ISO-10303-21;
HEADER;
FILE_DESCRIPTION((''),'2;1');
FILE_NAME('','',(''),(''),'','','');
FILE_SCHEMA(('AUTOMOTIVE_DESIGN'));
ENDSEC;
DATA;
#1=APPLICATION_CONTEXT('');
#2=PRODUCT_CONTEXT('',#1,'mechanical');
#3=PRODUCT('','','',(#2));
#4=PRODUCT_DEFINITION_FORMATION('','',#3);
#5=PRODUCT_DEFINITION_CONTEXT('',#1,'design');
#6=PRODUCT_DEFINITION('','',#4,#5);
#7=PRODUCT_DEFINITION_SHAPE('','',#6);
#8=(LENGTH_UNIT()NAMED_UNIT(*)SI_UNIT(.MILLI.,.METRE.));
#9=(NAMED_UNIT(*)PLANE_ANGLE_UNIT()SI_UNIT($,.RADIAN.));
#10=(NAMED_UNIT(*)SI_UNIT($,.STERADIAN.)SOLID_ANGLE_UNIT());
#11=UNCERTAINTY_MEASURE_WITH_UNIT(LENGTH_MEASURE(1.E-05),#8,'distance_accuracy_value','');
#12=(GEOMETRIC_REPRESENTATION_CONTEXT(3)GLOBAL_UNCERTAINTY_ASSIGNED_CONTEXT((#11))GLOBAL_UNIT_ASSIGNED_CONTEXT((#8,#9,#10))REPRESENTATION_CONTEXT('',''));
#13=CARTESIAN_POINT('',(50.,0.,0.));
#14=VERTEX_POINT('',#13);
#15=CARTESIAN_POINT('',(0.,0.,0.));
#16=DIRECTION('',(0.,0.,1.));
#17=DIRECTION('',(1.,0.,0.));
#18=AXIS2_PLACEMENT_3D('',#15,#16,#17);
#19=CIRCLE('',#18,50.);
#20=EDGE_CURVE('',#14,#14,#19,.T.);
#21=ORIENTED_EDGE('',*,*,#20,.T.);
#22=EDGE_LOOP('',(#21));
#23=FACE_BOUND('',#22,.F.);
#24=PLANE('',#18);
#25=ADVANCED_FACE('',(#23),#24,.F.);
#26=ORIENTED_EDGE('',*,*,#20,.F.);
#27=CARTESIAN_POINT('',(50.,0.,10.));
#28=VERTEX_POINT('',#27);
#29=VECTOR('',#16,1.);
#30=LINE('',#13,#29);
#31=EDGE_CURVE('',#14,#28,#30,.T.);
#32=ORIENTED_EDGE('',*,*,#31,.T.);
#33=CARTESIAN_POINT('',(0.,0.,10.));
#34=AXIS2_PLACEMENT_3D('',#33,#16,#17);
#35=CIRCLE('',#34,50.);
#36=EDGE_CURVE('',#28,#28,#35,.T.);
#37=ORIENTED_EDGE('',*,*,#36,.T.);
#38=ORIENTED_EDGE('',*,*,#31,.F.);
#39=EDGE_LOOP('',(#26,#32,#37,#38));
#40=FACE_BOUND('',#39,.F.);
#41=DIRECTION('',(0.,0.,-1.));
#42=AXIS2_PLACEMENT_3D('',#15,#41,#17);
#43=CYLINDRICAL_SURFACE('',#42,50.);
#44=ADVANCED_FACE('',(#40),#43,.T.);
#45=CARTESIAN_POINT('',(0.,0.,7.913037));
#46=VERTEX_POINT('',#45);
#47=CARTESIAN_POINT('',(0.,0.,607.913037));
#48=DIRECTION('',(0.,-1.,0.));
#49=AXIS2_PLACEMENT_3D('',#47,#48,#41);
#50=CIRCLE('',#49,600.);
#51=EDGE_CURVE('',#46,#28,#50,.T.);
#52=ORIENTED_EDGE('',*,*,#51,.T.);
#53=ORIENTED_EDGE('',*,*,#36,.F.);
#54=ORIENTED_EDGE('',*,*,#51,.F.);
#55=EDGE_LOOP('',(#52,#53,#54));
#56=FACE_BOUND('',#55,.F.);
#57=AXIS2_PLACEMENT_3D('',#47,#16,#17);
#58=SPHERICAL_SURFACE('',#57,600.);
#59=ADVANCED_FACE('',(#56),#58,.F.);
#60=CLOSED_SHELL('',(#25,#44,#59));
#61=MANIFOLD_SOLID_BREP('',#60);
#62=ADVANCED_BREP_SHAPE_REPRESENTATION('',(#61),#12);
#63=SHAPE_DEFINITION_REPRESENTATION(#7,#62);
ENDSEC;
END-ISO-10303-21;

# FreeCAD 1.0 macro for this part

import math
import FreeCAD as App
import Part
import Sketcher

V = App.Vector
Q = App.Units.Quantity

doc = App.newDocument("Part")
body = doc.addObject("PartDesign::Body", "Body")

# Sketch on XZ plane
sketch1 = body.newObject("Sketcher::SketchObject", "Sketch")
sketch1.AttachmentSupport = (doc.getObject("XZ_Plane"), [""])
sketch1.MapMode = "FlatFace"
sketch1.addGeometry(Part.ArcOfCircle(Part.Circle(V(0, 608, 0), V(0, 0, 1), 600), math.radians(-90), math.radians(90)), False)
sketch1.addGeometry(Part.LineSegment(V(0, 1208, 0), V(0, 8, 0)), False)
sketch1.addConstraint(Sketcher.Constraint("Coincident", 0, 1, 1, 2))
sketch1.addConstraint(Sketcher.Constraint("Coincident", 1, 1, 0, 2))
sketch1.addConstraint(Sketcher.Constraint("Vertical", 1))
sketch1.addConstraint(Sketcher.Constraint("PointOnObject", 0, 3, -2))
sketch1.addConstraint(Sketcher.Constraint("PointOnObject", 1, 1, -2))
sketch1.addConstraint(Sketcher.Constraint("Radius", 0, Q("600 mm")))
sketch1.addConstraint(Sketcher.Constraint("DistanceY", -1, 1, 0, 3, Q("607.913037 mm")))
revolution = body.newObject("PartDesign::Revolution", "Revolution")
revolution.Profile = sketch1
revolution.ReferenceAxis = (sketch1, ["V_Axis"])
revolution.Angle = 360
body2 = doc.addObject("PartDesign::Body", "Body001")

# Sketch on XY plane
sketch2 = body2.newObject("Sketcher::SketchObject", "Sketch001")
sketch2.AttachmentSupport = (doc.getObject("XY_Plane001"), [""])
sketch2.MapMode = "FlatFace"
sketch2.addGeometry(Part.Circle(V(0, 0, 0), V(0, 0, 1), 50), False)
sketch2.addConstraint(Sketcher.Constraint("Coincident", 0, 3, -1, 1))
sketch2.addConstraint(Sketcher.Constraint("Diameter", 0, Q("100 mm")))
pad1 = body2.newObject("PartDesign::Pad", "Pad")
pad1.Profile = sketch2
pad1.Length = 10
doc.recompute()

boolean = body2.newObject("PartDesign::Boolean", "Boolean")
boolean.Type = "Cut"
boolean.addObjects([body])

doc.recompute()
